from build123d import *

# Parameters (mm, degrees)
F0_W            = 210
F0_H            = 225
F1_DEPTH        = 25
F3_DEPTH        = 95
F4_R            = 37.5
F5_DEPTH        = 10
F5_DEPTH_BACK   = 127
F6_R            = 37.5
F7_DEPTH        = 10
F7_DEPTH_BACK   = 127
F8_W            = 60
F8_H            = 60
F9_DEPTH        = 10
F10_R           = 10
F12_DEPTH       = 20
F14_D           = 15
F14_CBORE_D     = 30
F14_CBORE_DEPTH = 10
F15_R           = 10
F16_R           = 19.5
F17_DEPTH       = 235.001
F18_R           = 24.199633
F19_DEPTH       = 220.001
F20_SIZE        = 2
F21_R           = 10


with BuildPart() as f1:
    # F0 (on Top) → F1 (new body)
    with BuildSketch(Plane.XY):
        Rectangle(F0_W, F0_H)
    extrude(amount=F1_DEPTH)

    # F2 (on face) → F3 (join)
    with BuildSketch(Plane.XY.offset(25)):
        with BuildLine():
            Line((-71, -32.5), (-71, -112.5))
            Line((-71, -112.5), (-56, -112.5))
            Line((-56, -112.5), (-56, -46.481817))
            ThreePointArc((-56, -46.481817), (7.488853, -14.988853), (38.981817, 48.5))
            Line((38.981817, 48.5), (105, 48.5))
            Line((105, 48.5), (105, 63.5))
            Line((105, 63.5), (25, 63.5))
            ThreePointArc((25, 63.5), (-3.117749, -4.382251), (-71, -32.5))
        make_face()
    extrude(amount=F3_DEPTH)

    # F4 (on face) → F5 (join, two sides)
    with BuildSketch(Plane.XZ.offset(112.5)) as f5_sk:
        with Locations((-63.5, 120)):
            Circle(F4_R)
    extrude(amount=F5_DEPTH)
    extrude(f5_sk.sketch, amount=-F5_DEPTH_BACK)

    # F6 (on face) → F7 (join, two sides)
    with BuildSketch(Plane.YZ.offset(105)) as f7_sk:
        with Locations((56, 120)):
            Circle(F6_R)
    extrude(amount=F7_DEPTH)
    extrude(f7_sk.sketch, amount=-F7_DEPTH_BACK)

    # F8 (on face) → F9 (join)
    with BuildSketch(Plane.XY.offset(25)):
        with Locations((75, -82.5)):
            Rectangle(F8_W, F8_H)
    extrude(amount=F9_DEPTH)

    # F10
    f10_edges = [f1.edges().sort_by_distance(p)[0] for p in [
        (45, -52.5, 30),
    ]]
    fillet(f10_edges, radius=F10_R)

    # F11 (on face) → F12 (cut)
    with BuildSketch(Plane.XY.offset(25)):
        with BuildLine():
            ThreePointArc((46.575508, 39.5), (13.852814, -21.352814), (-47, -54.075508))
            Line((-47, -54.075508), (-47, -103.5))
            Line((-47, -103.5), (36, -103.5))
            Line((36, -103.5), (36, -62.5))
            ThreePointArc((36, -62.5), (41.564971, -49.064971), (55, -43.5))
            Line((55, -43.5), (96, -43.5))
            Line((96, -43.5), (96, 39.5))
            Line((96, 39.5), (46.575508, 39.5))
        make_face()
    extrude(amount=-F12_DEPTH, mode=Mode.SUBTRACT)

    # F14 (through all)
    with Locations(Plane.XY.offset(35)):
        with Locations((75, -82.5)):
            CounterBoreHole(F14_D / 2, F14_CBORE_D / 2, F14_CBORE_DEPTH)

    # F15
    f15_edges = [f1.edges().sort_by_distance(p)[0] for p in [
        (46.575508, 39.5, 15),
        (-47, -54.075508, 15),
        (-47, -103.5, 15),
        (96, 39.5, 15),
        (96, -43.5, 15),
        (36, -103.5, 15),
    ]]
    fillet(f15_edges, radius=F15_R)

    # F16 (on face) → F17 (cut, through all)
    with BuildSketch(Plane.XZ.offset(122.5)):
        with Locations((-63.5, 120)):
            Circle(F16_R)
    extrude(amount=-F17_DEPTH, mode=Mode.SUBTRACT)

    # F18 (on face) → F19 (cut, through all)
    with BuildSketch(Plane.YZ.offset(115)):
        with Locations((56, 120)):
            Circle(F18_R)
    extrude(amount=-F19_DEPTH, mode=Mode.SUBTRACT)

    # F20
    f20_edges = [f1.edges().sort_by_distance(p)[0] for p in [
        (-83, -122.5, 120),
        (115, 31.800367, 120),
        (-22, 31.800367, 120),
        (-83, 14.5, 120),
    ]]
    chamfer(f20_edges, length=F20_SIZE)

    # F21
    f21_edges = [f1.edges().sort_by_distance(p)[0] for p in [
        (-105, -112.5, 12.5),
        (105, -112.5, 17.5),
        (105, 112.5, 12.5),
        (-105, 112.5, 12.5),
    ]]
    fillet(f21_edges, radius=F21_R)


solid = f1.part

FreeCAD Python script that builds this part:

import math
import FreeCAD as App
import Part
import Sketcher
Q = App.Units.Quantity


def edges_at(feature, points):
    """Names of the edges that pass closest to the given points."""
    edges = feature.Shape.Edges
    near = lambda p: min(range(len(edges)), key=lambda i: edges[i].distToShape(Part.Vertex(*p))[0])
    return sorted({f"Edge{near(p) + 1}" for p in points})


def add_polygon(sketch, points):
    """Adds a closed chain of lines whose ends are joined by coincident constraints."""
    first, n = sketch.GeometryCount, len(points)
    for a, b in zip(points, points[1:] + points[:1]):
        sketch.addGeometry(Part.LineSegment(App.Vector(*a, 0), App.Vector(*b, 0)), False)
    for i in range(n):
        sketch.addConstraint(Sketcher.Constraint("Coincident", first + i, 2, first + (i + 1) % n, 1))

doc = App.newDocument("Part")
body = doc.addObject("PartDesign::Body", "Body")

sketch1 = doc.addObject("Sketcher::SketchObject", "Sketch")
body.addObject(sketch1)
sketch1.AttachmentSupport = (doc.XY_Plane, [""])
sketch1.MapMode = "FlatFace"
add_polygon(sketch1, [(-105, 112), (-105, -112), (105, -112), (105, 112)])
sketch1.addConstraint(Sketcher.Constraint("Vertical", 0))
sketch1.addConstraint(Sketcher.Constraint("Horizontal", 1))
sketch1.addConstraint(Sketcher.Constraint("Vertical", 2))
sketch1.addConstraint(Sketcher.Constraint("Horizontal", 3))
sketch1.addConstraint(Sketcher.Constraint("Symmetric", 0, 2, 2, 2, -1, 1))
sketch1.addConstraint(Sketcher.Constraint("DistanceX", 1, 1, 1, 2, Q("210 mm")))
sketch1.addConstraint(Sketcher.Constraint("DistanceY", 0, 2, 0, 1, Q("225 mm")))
pad1 = doc.addObject("PartDesign::Pad", "Pad")
body.addObject(pad1)
pad1.Profile = sketch1
pad1.Length = 25

sketch2 = doc.addObject("Sketcher::SketchObject", "Sketch001")
body.addObject(sketch2)
sketch2.AttachmentSupport = (doc.XY_Plane, [""])
sketch2.MapMode = "FlatFace"
sketch2.AttachmentOffset = App.Placement(App.Vector(0, 0, 25), App.Rotation())
sketch2.addGeometry(Part.LineSegment(App.Vector(-71, -32, 0), App.Vector(-71, -112, 0)), False)
sketch2.addGeometry(Part.LineSegment(App.Vector(-71, -112, 0), App.Vector(-56, -112, 0)), False)
sketch2.addGeometry(Part.LineSegment(App.Vector(-56, -112, 0), App.Vector(-56, -46, 0)), False)
sketch2.addGeometry(Part.ArcOfCircle(Part.Circle(App.Vector(-71, 63, 0), App.Vector(0, 0, 1), 111), math.radians(-82), math.radians(-8)), False)
sketch2.addGeometry(Part.LineSegment(App.Vector(39, 48, 0), App.Vector(105, 48, 0)), False)
sketch2.addGeometry(Part.LineSegment(App.Vector(105, 48, 0), App.Vector(105, 64, 0)), False)
sketch2.addGeometry(Part.LineSegment(App.Vector(105, 64, 0), App.Vector(25, 64, 0)), False)
sketch2.addGeometry(Part.ArcOfCircle(Part.Circle(App.Vector(-71, 63, 0), App.Vector(0, 0, 1), 96), math.radians(-90), math.radians(0)), False)
sketch2.addConstraint(Sketcher.Constraint("Coincident", 0, 2, 1, 1))
sketch2.addConstraint(Sketcher.Constraint("Coincident", 1, 2, 2, 1))
sketch2.addConstraint(Sketcher.Constraint("Coincident", 2, 2, 3, 1))
sketch2.addConstraint(Sketcher.Constraint("Coincident", 3, 2, 4, 1))
sketch2.addConstraint(Sketcher.Constraint("Coincident", 4, 2, 5, 1))
sketch2.addConstraint(Sketcher.Constraint("Coincident", 5, 2, 6, 1))
sketch2.addConstraint(Sketcher.Constraint("Coincident", 6, 2, 7, 2))
sketch2.addConstraint(Sketcher.Constraint("Coincident", 7, 1, 0, 1))
sketch2.addConstraint(Sketcher.Constraint("Vertical", 0))
sketch2.addConstraint(Sketcher.Constraint("Horizontal", 1))
sketch2.addConstraint(Sketcher.Constraint("Vertical", 2))
sketch2.addConstraint(Sketcher.Constraint("Horizontal", 4))
sketch2.addConstraint(Sketcher.Constraint("Vertical", 5))
sketch2.addConstraint(Sketcher.Constraint("Horizontal", 6))
sketch2.addConstraint(Sketcher.Constraint("Coincident", 7, 3, 3, 3))
sketch2.addConstraint(Sketcher.Constraint("Horizontal", 7, 3, 5, 2))
sketch2.addConstraint(Sketcher.Constraint("Vertical", 7, 3, 0, 2))
sketch2.addConstraint(Sketcher.Constraint("Equal", 6, 0))
sketch2.addConstraint(Sketcher.Constraint("Equal", 4, 2))
sketch2.addConstraint(Sketcher.Constraint("Radius", 3, Q("111 mm")))
sketch2.addConstraint(Sketcher.Constraint("Radius", 7, Q("96 mm")))
sketch2.addConstraint(Sketcher.Constraint("DistanceX", 1, 1, 1, 2, Q("15 mm")))
sketch2.addConstraint(Sketcher.Constraint("DistanceX", 6, 2, 6, 1, Q("80 mm")))
sketch2.addConstraint(Sketcher.Constraint("DistanceX", 3, 3, -1, 1, Q("71 mm")))
sketch2.addConstraint(Sketcher.Constraint("DistanceY", -1, 1, 3, 3, Q("63.5 mm")))
pad2 = doc.addObject("PartDesign::Pad", "Pad001")
body.addObject(pad2)
pad2.Profile = sketch2
pad2.Length = 95

sketch3 = doc.addObject("Sketcher::SketchObject", "Sketch002")
body.addObject(sketch3)
sketch3.AttachmentSupport = (doc.XZ_Plane, [""])
sketch3.MapMode = "FlatFace"
sketch3.AttachmentOffset = App.Placement(App.Vector(0, 0, 112.5), App.Rotation())
sketch3.addGeometry(Part.Circle(App.Vector(-64, 120, 0), App.Vector(0, 0, 1), 38), False)
sketch3.addConstraint(Sketcher.Constraint("Diameter", 0, Q("75 mm")))
sketch3.addConstraint(Sketcher.Constraint("DistanceY", -1, 1, 0, 3, Q("120 mm")))
sketch3.addConstraint(Sketcher.Constraint("DistanceX", 0, 3, -1, 1, Q("63.5 mm")))
pad3 = doc.addObject("PartDesign::Pad", "Pad002")
body.addObject(pad3)
pad3.Profile = sketch3
pad3.Type = "TwoLengths"
pad3.Length = 10
pad3.Length2 = 127

sketch4 = doc.addObject("Sketcher::SketchObject", "Sketch003")
body.addObject(sketch4)
sketch4.AttachmentSupport = (doc.YZ_Plane, [""])
sketch4.MapMode = "FlatFace"
sketch4.AttachmentOffset = App.Placement(App.Vector(0, 0, 105), App.Rotation())
sketch4.addGeometry(Part.Circle(App.Vector(56, 120, 0), App.Vector(0, 0, 1), 38), False)
sketch4.addConstraint(Sketcher.Constraint("Diameter", 0, Q("75 mm")))
sketch4.addConstraint(Sketcher.Constraint("DistanceX", -1, 1, 0, 3, Q("56 mm")))
sketch4.addConstraint(Sketcher.Constraint("DistanceY", -1, 1, 0, 3, Q("120 mm")))
pad4 = doc.addObject("PartDesign::Pad", "Pad003")
body.addObject(pad4)
pad4.Profile = sketch4
pad4.Type = "TwoLengths"
pad4.Length = 10
pad4.Length2 = 127

sketch5 = doc.addObject("Sketcher::SketchObject", "Sketch004")
body.addObject(sketch5)
sketch5.AttachmentSupport = (doc.XY_Plane, [""])
sketch5.MapMode = "FlatFace"
sketch5.AttachmentOffset = App.Placement(App.Vector(0, 0, 25), App.Rotation())
add_polygon(sketch5, [(45, -52), (45, -112), (105, -112), (105, -52)])
sketch5.addConstraint(Sketcher.Constraint("Vertical", 0))
sketch5.addConstraint(Sketcher.Constraint("Horizontal", 1))
sketch5.addConstraint(Sketcher.Constraint("Vertical", 2))
sketch5.addConstraint(Sketcher.Constraint("Horizontal", 3))
sketch5.addConstraint(Sketcher.Constraint("Equal", 3, 0))
sketch5.addConstraint(Sketcher.Constraint("DistanceX", 1, 1, 1, 2, Q("60 mm")))
sketch5.addConstraint(Sketcher.Constraint("DistanceX", -1, 1, 0, 2, Q("45 mm")))
sketch5.addConstraint(Sketcher.Constraint("DistanceY", 0, 2, -1, 1, Q("112.5 mm")))
pad5 = doc.addObject("PartDesign::Pad", "Pad004")
body.addObject(pad5)
pad5.Profile = sketch5
pad5.Length = 10
doc.recompute()

fillet = doc.addObject("PartDesign::Fillet", "Fillet")
body.addObject(fillet)
fillet.Base = (pad5, edges_at(pad5, [(45, -52.5, 30)]))
fillet.Radius = 10

sketch6 = doc.addObject("Sketcher::SketchObject", "Sketch005")
body.addObject(sketch6)
sketch6.AttachmentSupport = (doc.XY_Plane, [""])
sketch6.MapMode = "FlatFace"
sketch6.AttachmentOffset = App.Placement(App.Vector(0, 0, 25), App.Rotation())
sketch6.addGeometry(Part.ArcOfCircle(Part.Circle(App.Vector(-71, 63, 0), App.Vector(0, 0, 1), 120), math.radians(-78), math.radians(-12)), False)
sketch6.addGeometry(Part.LineSegment(App.Vector(-47, -54, 0), App.Vector(-47, -104, 0)), False)
sketch6.addGeometry(Part.LineSegment(App.Vector(-47, -104, 0), App.Vector(36, -104, 0)), False)
sketch6.addGeometry(Part.LineSegment(App.Vector(36, -104, 0), App.Vector(36, -62, 0)), False)
sketch6.addGeometry(Part.ArcOfCircle(Part.Circle(App.Vector(55, -62, 0), App.Vector(0, 0, 1), 19), math.radians(90), math.radians(180)), False)
sketch6.addGeometry(Part.LineSegment(App.Vector(55, -44, 0), App.Vector(96, -44, 0)), False)
sketch6.addGeometry(Part.LineSegment(App.Vector(96, -44, 0), App.Vector(96, 40, 0)), False)
sketch6.addGeometry(Part.LineSegment(App.Vector(96, 40, 0), App.Vector(47, 40, 0)), False)
sketch6.addConstraint(Sketcher.Constraint("Coincident", 0, 1, 1, 1))
sketch6.addConstraint(Sketcher.Constraint("Coincident", 1, 2, 2, 1))
sketch6.addConstraint(Sketcher.Constraint("Coincident", 2, 2, 3, 1))
sketch6.addConstraint(Sketcher.Constraint("Tangent", 3, 2, 4, 2))
sketch6.addConstraint(Sketcher.Constraint("Tangent", 4, 1, 5, 1))
sketch6.addConstraint(Sketcher.Constraint("Coincident", 5, 2, 6, 1))
sketch6.addConstraint(Sketcher.Constraint("Coincident", 6, 2, 7, 1))
sketch6.addConstraint(Sketcher.Constraint("Coincident", 7, 2, 0, 2))
sketch6.addConstraint(Sketcher.Constraint("Vertical", 1))
sketch6.addConstraint(Sketcher.Constraint("Horizontal", 2))
sketch6.addConstraint(Sketcher.Constraint("Vertical", 3))
sketch6.addConstraint(Sketcher.Constraint("Horizontal", 5))
sketch6.addConstraint(Sketcher.Constraint("Vertical", 6))
sketch6.addConstraint(Sketcher.Constraint("Horizontal", 7))
sketch6.addConstraint(Sketcher.Constraint("Equal", 7, 1))
sketch6.addConstraint(Sketcher.Constraint("Equal", 5, 3))
sketch6.addConstraint(Sketcher.Constraint("Equal", 2, 6))
sketch6.addConstraint(Sketcher.Constraint("Radius", 0, Q("120 mm")))
sketch6.addConstraint(Sketcher.Constraint("Radius", 4, Q("18.999999 mm")))
sketch6.addConstraint(Sketcher.Constraint("DistanceX", 2, 1, 2, 2, Q("83 mm")))
sketch6.addConstraint(Sketcher.Constraint("DistanceX", 5, 1, 5, 2, Q("41 mm")))
sketch6.addConstraint(Sketcher.Constraint("DistanceX", 0, 3, -1, 1, Q("71 mm")))
sketch6.addConstraint(Sketcher.Constraint("DistanceX", -1, 1, 4, 3, Q("54.999999 mm")))
sketch6.addConstraint(Sketcher.Constraint("DistanceY", -1, 1, 0, 3, Q("63.5 mm")))
pocket1 = doc.addObject("PartDesign::Pocket", "Pocket")
body.addObject(pocket1)
pocket1.Profile = sketch6
pocket1.Length = 20

sketch7 = doc.addObject("Sketcher::SketchObject", "Sketch006")
body.addObject(sketch7)
sketch7.AttachmentSupport = (doc.XY_Plane, [""])
sketch7.MapMode = "FlatFace"
sketch7.AttachmentOffset = App.Placement(App.Vector(0, 0, 35), App.Rotation())
sketch7.addGeometry(Part.Circle(App.Vector(75, -82, 0), App.Vector(0, 0, 1), 8), False)
sketch7.addConstraint(Sketcher.Constraint("Diameter", 0, Q("15 mm")))
sketch7.addConstraint(Sketcher.Constraint("DistanceX", -1, 1, 0, 3, Q("75 mm")))
sketch7.addConstraint(Sketcher.Constraint("DistanceY", 0, 3, -1, 1, Q("82.5 mm")))
doc.recompute()
hole = doc.addObject("PartDesign::Hole", "Hole")
body.addObject(hole)
hole.Profile = sketch7
hole.ThreadType = "None"
hole.Diameter = 15
hole.DepthType = "ThroughAll"
hole.HoleCutType = "Counterbore"
hole.HoleCutDiameter = 30
hole.HoleCutDepth = 10
doc.recompute()

fillet2 = doc.addObject("PartDesign::Fillet", "Fillet001")
body.addObject(fillet2)
fillet2.Base = (hole, edges_at(hole, [
    (46.576, 39.5, 15),
    (-47, -54.076, 15),
    (-47, -103.5, 15),
    (96, 39.5, 15),
    (96, -43.5, 15),
    (36, -103.5, 15),
]))
fillet2.Radius = 10

sketch8 = doc.addObject("Sketcher::SketchObject", "Sketch007")
body.addObject(sketch8)
sketch8.AttachmentSupport = (doc.XZ_Plane, [""])
sketch8.MapMode = "FlatFace"
sketch8.AttachmentOffset = App.Placement(App.Vector(0, 0, 122.5), App.Rotation())
sketch8.addGeometry(Part.Circle(App.Vector(-64, 120, 0), App.Vector(0, 0, 1), 20), False)
sketch8.addConstraint(Sketcher.Constraint("Diameter", 0, Q("39 mm")))
sketch8.addConstraint(Sketcher.Constraint("DistanceY", -1, 1, 0, 3, Q("120 mm")))
sketch8.addConstraint(Sketcher.Constraint("DistanceX", 0, 3, -1, 1, Q("63.5 mm")))
pocket2 = doc.addObject("PartDesign::Pocket", "Pocket001")
body.addObject(pocket2)
pocket2.Profile = sketch8
pocket2.Type = "ThroughAll"

sketch9 = doc.addObject("Sketcher::SketchObject", "Sketch008")
body.addObject(sketch9)
sketch9.AttachmentSupport = (doc.YZ_Plane, [""])
sketch9.MapMode = "FlatFace"
sketch9.AttachmentOffset = App.Placement(App.Vector(0, 0, 115), App.Rotation())
sketch9.addGeometry(Part.Circle(App.Vector(56, 120, 0), App.Vector(0, 0, 1), 24), False)
sketch9.addConstraint(Sketcher.Constraint("DistanceX", -1, 1, 0, 3, Q("56 mm")))
sketch9.addConstraint(Sketcher.Constraint("DistanceY", -1, 1, 0, 3, Q("120 mm")))
sketch9.addConstraint(Sketcher.Constraint("Diameter", 0, Q("48.399266 mm")))
pocket3 = doc.addObject("PartDesign::Pocket", "Pocket002")
body.addObject(pocket3)
pocket3.Profile = sketch9
pocket3.Type = "ThroughAll"
doc.recompute()

chamfer = doc.addObject("PartDesign::Chamfer", "Chamfer")
body.addObject(chamfer)
chamfer.Base = (pocket3, edges_at(pocket3, [
    (-83, -122.5, 120),
    (115, 31.8, 120),
    (-22, 31.8, 120),
    (-83, 14.5, 120),
]))
chamfer.Size = 2
doc.recompute()

fillet3 = doc.addObject("PartDesign::Fillet", "Fillet002")
body.addObject(fillet3)
fillet3.Base = (chamfer, edges_at(chamfer, [
    (-105, -112.5, 12.5),
    (105, -112.5, 17.5),
    (105, 112.5, 12.5),
    (-105, 112.5, 12.5),
]))
fillet3.Radius = 10

doc.recompute()
